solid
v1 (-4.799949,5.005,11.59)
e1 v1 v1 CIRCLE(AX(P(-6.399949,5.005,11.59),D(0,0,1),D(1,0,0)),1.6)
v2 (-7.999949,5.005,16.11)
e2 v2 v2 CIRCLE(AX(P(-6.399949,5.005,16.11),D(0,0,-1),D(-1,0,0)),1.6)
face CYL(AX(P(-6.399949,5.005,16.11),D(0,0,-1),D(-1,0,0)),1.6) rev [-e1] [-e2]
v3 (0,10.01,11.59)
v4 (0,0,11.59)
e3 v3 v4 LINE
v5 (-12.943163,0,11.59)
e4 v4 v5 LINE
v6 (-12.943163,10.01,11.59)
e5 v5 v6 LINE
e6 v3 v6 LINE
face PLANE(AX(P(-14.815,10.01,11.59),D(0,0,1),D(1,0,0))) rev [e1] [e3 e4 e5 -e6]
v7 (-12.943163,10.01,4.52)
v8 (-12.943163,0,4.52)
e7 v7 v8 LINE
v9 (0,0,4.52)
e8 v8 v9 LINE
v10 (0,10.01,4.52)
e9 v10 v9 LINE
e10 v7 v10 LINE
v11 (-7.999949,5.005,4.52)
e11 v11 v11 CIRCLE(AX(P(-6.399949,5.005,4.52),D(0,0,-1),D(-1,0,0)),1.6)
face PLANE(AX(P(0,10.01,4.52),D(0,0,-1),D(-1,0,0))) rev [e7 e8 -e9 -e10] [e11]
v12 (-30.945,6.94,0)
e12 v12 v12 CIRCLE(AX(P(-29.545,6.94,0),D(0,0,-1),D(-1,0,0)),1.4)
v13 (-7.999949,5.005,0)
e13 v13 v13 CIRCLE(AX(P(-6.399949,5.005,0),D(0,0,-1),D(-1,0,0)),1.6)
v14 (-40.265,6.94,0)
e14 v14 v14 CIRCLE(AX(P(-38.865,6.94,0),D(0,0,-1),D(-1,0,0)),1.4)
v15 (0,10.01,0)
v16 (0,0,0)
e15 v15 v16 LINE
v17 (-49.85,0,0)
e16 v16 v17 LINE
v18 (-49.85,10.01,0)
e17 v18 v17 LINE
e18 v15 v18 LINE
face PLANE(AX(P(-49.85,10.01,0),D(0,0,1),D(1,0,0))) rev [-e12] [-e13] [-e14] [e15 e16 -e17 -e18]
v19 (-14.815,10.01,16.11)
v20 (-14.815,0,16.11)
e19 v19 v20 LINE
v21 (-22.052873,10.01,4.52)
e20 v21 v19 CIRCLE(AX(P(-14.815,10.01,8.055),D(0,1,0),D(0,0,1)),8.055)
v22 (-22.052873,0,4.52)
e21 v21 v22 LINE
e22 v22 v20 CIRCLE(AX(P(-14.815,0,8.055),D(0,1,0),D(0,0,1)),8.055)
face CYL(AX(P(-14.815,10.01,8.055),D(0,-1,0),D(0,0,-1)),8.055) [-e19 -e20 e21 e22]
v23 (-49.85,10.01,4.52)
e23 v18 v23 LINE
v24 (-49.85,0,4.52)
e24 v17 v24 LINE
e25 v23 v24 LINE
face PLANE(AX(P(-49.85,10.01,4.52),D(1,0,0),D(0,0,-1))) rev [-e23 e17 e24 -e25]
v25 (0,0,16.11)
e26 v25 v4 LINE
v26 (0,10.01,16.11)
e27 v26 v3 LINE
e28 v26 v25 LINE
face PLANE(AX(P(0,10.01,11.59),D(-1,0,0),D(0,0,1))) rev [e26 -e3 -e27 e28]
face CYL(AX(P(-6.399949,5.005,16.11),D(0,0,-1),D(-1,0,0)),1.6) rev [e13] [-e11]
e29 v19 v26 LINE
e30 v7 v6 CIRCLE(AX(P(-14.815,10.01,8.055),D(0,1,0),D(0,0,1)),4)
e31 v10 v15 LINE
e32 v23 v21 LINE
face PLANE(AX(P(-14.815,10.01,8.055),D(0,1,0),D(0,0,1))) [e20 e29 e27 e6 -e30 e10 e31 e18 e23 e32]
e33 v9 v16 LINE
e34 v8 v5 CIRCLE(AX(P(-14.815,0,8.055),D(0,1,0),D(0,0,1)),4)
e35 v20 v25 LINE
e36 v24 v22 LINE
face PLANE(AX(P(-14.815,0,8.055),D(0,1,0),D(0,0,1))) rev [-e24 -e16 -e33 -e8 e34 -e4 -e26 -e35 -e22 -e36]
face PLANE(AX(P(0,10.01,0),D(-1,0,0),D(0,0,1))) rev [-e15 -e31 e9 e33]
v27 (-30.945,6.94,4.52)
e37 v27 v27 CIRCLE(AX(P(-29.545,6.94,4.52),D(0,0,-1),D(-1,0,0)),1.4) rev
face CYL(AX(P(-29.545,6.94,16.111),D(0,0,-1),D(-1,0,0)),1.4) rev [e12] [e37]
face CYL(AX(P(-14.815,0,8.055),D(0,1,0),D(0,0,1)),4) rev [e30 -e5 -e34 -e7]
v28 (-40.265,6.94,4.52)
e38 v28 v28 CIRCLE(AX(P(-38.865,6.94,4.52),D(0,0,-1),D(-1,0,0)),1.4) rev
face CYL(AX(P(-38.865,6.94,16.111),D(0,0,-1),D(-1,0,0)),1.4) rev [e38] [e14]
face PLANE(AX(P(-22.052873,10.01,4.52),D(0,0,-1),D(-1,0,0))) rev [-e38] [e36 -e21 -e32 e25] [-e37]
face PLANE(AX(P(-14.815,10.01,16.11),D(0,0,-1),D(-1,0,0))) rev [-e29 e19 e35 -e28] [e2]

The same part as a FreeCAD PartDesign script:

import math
import FreeCAD as App
import Part
import Sketcher
Q = App.Units.Quantity

doc = App.newDocument("Part")
body = doc.addObject("PartDesign::Body", "Body")

sketch1 = body.newObject("Sketcher::SketchObject", "Sketch")
sketch1.AttachmentSupport = (doc.getObject("XZ_Plane"), [""])
sketch1.MapMode = "FlatFace"
sketch1.addGeometry(Part.LineSegment(App.Vector(0, 0, 0), App.Vector(-49.9, 0, 0)), False)
sketch1.addGeometry(Part.LineSegment(App.Vector(-49.9, 0, 0), App.Vector(-49.9, 4.5, 0)), False)
sketch1.addGeometry(Part.LineSegment(App.Vector(-49.9, 4.5, 0), App.Vector(-22.1, 4.5, 0)), False)
sketch1.addGeometry(Part.ArcOfCircle(Part.Circle(App.Vector(-14.8, 8.1, 0), App.Vector(0, 0, 1), 8.1), math.radians(90), math.radians(206)), False)
sketch1.addGeometry(Part.LineSegment(App.Vector(-14.8, 16.1, 0), App.Vector(0, 16.1, 0)), False)
sketch1.addGeometry(Part.LineSegment(App.Vector(0, 16.1, 0), App.Vector(0, 11.6, 0)), False)
sketch1.addGeometry(Part.LineSegment(App.Vector(0, 11.6, 0), App.Vector(-14.8, 11.6, 0)), False)
sketch1.addGeometry(Part.ArcOfCircle(Part.Circle(App.Vector(-14.8, 8.1, 0), App.Vector(0, 0, 1), 3.5), math.radians(90), math.radians(270)), False)
sketch1.addGeometry(Part.LineSegment(App.Vector(-14.8, 4.5, 0), App.Vector(0, 4.5, 0)), False)
sketch1.addGeometry(Part.LineSegment(App.Vector(0, 4.5, 0), App.Vector(0, 0, 0)), False)
sketch1.addConstraint(Sketcher.Constraint("Coincident", 0, 2, 1, 1))
sketch1.addConstraint(Sketcher.Constraint("Coincident", 1, 2, 2, 1))
sketch1.addConstraint(Sketcher.Constraint("Coincident", 2, 2, 3, 2))
sketch1.addConstraint(Sketcher.Constraint("Tangent", 3, 1, 4, 1))
sketch1.addConstraint(Sketcher.Constraint("Coincident", 4, 2, 5, 1))
sketch1.addConstraint(Sketcher.Constraint("Coincident", 5, 2, 6, 1))
sketch1.addConstraint(Sketcher.Constraint("Tangent", 6, 2, 7, 1))
sketch1.addConstraint(Sketcher.Constraint("Tangent", 7, 2, 8, 1))
sketch1.addConstraint(Sketcher.Constraint("Coincident", 8, 2, 9, 1))
sketch1.addConstraint(Sketcher.Constraint("Coincident", 9, 2, 0, 1))
sketch1.addConstraint(Sketcher.Constraint("Horizontal", 0))
sketch1.addConstraint(Sketcher.Constraint("Vertical", 1))
sketch1.addConstraint(Sketcher.Constraint("Horizontal", 2))
sketch1.addConstraint(Sketcher.Constraint("Horizontal", 4))
sketch1.addConstraint(Sketcher.Constraint("Vertical", 5))
sketch1.addConstraint(Sketcher.Constraint("Horizontal", 6))
sketch1.addConstraint(Sketcher.Constraint("Horizontal", 8))
sketch1.addConstraint(Sketcher.Constraint("Vertical", 9))
sketch1.addConstraint(Sketcher.Constraint("Coincident", 9, 2, -1, 1))
sketch1.addConstraint(Sketcher.Constraint("Coincident", 7, 3, 3, 3))
sketch1.addConstraint(Sketcher.Constraint("PointOnObject", 4, 2, -2))
sketch1.addConstraint(Sketcher.Constraint("Horizontal", 2, 2, 7, 2))
sketch1.addConstraint(Sketcher.Constraint("Equal", 1, 5))
sketch1.addConstraint(Sketcher.Constraint("Radius", 3, Q("8.055 mm")))
sketch1.addConstraint(Sketcher.Constraint("Radius", 7, Q("3.535 mm")))
sketch1.addConstraint(Sketcher.Constraint("DistanceX", 0, 2, 0, 1, Q("49.85 mm")))
sketch1.addConstraint(Sketcher.Constraint("DistanceX", 4, 1, 4, 2, Q("14.815 mm")))
pad1 = body.newObject("PartDesign::Pad", "Pad")
pad1.Profile = sketch1
pad1.Length = 10.01
pad1.Reversed = True

sketch2 = body.newObject("Sketcher::SketchObject", "Sketch001")
sketch2.AttachmentSupport = (doc.getObject("XZ_Plane"), [""])
sketch2.MapMode = "FlatFace"
sketch2.AttachmentOffset = App.Placement(App.Vector(0, 0, -10.01), App.Rotation())
sketch2.addGeometry(Part.Circle(App.Vector(-14.8, 8.1, 0), App.Vector(0, 0, 1), 4), False)
sketch2.addConstraint(Sketcher.Constraint("Diameter", 0, Q("8 mm")))
sketch2.addConstraint(Sketcher.Constraint("DistanceX", 0, 3, -1, 1, Q("14.815 mm")))
sketch2.addConstraint(Sketcher.Constraint("DistanceY", -1, 1, 0, 3, Q("8.055 mm")))
pocket1 = body.newObject("PartDesign::Pocket", "Pocket")
pocket1.Profile = sketch2
pocket1.Type = "ThroughAll"
pocket1.Reversed = True

sketch3 = body.newObject("Sketcher::SketchObject", "Sketch002")
sketch3.AttachmentSupport = (doc.getObject("XY_Plane"), [""])
sketch3.MapMode = "FlatFace"
sketch3.addGeometry(Part.Circle(App.Vector(-6.4, 5, 0), App.Vector(0, 0, 1), 1.6), False)
sketch3.addConstraint(Sketcher.Constraint("Diameter", 0, Q("3.2 mm")))
sketch3.addConstraint(Sketcher.Constraint("DistanceY", -1, 1, 0, 3, Q("5.005 mm")))
sketch3.addConstraint(Sketcher.Constraint("DistanceX", 0, 3, -1, 1, Q("6.399949 mm")))
pocket2 = body.newObject("PartDesign::Pocket", "Pocket001")
pocket2.Profile = sketch3
pocket2.Type = "ThroughAll"
pocket2.Reversed = True

sketch4 = body.newObject("Sketcher::SketchObject", "Sketch003")
sketch4.AttachmentSupport = (doc.getObject("XY_Plane"), [""])
sketch4.MapMode = "FlatFace"
sketch4.addGeometry(Part.Circle(App.Vector(-29.5, 6.9, 0), App.Vector(0, 0, 1), 1.4), False)
sketch4.addConstraint(Sketcher.Constraint("Diameter", 0, Q("2.8 mm")))
sketch4.addConstraint(Sketcher.Constraint("DistanceY", -1, 1, 0, 3, Q("6.94 mm")))
sketch4.addConstraint(Sketcher.Constraint("DistanceX", 0, 3, -1, 1, Q("29.545 mm")))
pocket3 = body.newObject("PartDesign::Pocket", "Pocket002")
pocket3.Profile = sketch4
pocket3.Type = "UpToFirst"
pocket3.Reversed = True

sketch5 = body.newObject("Sketcher::SketchObject", "Sketch004")
sketch5.AttachmentSupport = (doc.getObject("XY_Plane"), [""])
sketch5.MapMode = "FlatFace"
sketch5.addGeometry(Part.Circle(App.Vector(-38.9, 6.9, 0), App.Vector(0, 0, 1), 1.4), False)
sketch5.addConstraint(Sketcher.Constraint("Diameter", 0, Q("2.8 mm")))
sketch5.addConstraint(Sketcher.Constraint("DistanceY", -1, 1, 0, 3, Q("6.94 mm")))
sketch5.addConstraint(Sketcher.Constraint("DistanceX", 0, 3, -1, 1, Q("38.865 mm")))
pocket4 = body.newObject("PartDesign::Pocket", "Pocket003")
pocket4.Profile = sketch5
pocket4.Type = "UpToFirst"
pocket4.Reversed = True

doc.recompute()
